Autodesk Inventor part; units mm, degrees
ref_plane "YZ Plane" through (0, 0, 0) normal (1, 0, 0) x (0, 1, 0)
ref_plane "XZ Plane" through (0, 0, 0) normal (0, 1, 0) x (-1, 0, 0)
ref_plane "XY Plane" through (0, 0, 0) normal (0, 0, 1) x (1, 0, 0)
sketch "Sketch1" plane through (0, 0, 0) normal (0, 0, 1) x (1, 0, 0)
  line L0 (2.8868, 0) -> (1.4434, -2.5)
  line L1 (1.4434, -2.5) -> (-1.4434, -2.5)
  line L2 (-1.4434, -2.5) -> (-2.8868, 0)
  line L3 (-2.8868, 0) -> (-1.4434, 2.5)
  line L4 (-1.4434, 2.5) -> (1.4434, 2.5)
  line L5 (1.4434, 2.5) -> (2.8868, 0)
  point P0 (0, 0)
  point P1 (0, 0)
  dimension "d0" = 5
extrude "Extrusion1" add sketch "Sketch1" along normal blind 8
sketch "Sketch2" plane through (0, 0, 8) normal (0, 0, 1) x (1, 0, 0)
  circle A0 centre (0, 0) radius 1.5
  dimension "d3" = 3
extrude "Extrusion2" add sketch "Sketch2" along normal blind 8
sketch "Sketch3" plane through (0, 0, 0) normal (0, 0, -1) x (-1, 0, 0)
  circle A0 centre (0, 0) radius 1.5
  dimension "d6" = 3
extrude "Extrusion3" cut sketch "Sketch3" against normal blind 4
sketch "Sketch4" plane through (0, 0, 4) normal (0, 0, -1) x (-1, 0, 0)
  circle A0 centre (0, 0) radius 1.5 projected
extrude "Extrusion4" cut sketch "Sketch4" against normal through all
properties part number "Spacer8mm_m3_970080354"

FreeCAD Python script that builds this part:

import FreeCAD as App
import Part
import Sketcher

V = App.Vector
Q = App.Units.Quantity

doc = App.newDocument("Part")
params = doc.addObject("Spreadsheet::Sheet", "Params")
for row, (alias, value) in enumerate([
    ("pad1_length", "8 mm"),
    ("sketch2_diameter", "3 mm"),
    ("pad2_length", "8 mm"),
    ("sketch3_diameter", "3 mm"),
    ("pocket1_length", "4 mm"),
    ("sketch4_diameter", "3 mm"),
], start=1):
    params.set(f"A{row}", alias)
    params.set(f"B{row}", "=" + value)
    params.setAlias(f"B{row}", alias)

body = doc.addObject("PartDesign::Body", "Body")

sketch1 = doc.addObject("Sketcher::SketchObject", "Sketch")
body.addObject(sketch1)
sketch1.AttachmentSupport = (doc.XY_Plane, [""])
sketch1.MapMode = "FlatFace"
sketch1.addGeometry([
    Part.LineSegment(V(1.4, -2.5, 0), V(2.9, 0, 0)),
    Part.LineSegment(V(2.9, 0, 0), V(1.4, 2.5, 0)),
    Part.LineSegment(V(1.4, 2.5, 0), V(-1.4, 2.5, 0)),
    Part.LineSegment(V(-1.4, 2.5, 0), V(-2.9, 0, 0)),
    Part.LineSegment(V(-2.9, 0, 0), V(-1.4, -2.5, 0)),
    Part.LineSegment(V(-1.4, -2.5, 0), V(1.4, -2.5, 0)),
], False)
sketch1.addConstraint([
    Sketcher.Constraint("Coincident", 0, 2, 1, 1),
    Sketcher.Constraint("Coincident", 1, 2, 2, 1),
    Sketcher.Constraint("Coincident", 2, 2, 3, 1),
    Sketcher.Constraint("Coincident", 3, 2, 4, 1),
    Sketcher.Constraint("Coincident", 4, 2, 5, 1),
    Sketcher.Constraint("Coincident", 5, 2, 0, 1),
    Sketcher.Constraint("Horizontal", 2),
    Sketcher.Constraint("Horizontal", 5),
    Sketcher.Constraint("Symmetric", 0, 2, 3, 2, -1, 1),
    Sketcher.Constraint("Symmetric", 1, 2, 4, 2, -1, 1),
    Sketcher.Constraint("PointOnObject", 0, 2, -1),
    Sketcher.Constraint("Parallel", 0, 3),
    Sketcher.Constraint("Vertical", 2, 2, 4, 2),
    Sketcher.Constraint("DistanceY", 4, 2, 2, 2, Q("5 mm")),
    Sketcher.Constraint("Angle", 0, Q("59.9996 deg")),
    Sketcher.Constraint("DistanceX", 2, 2, 2, 1, Q("2.8868 mm")),
])
pad1 = doc.addObject("PartDesign::Pad", "Pad")
body.addObject(pad1)
pad1.Profile = sketch1
pad1.setExpression("Length", "Params.pad1_length")

sketch2 = doc.addObject("Sketcher::SketchObject", "Sketch001")
body.addObject(sketch2)
sketch2.AttachmentSupport = (doc.XY_Plane, [""])
sketch2.MapMode = "FlatFace"
sketch2.AttachmentOffset = App.Placement(V(0, 0, 8), App.Rotation())
sketch2.addGeometry(Part.Circle(V(0, 0, 0), V(0, 0, 1), 1.5), False)
sketch2.addConstraint([
    Sketcher.Constraint("Coincident", 0, 3, -1, 1),
    Sketcher.Constraint("Diameter", 0, Q("3 mm")),
])
sketch2.setExpression("Constraints[1]", "Params.sketch2_diameter")
pad2 = doc.addObject("PartDesign::Pad", "Pad001")
body.addObject(pad2)
pad2.Profile = sketch2
pad2.setExpression("Length", "Params.pad2_length")

sketch3 = doc.addObject("Sketcher::SketchObject", "Sketch002")
body.addObject(sketch3)
sketch3.AttachmentSupport = (doc.XY_Plane, [""])
sketch3.MapMode = "FlatFace"
sketch3.addGeometry(Part.Circle(V(0, 0, 0), V(0, 0, 1), 1.5), False)
sketch3.addConstraint([
    Sketcher.Constraint("Coincident", 0, 3, -1, 1),
    Sketcher.Constraint("Diameter", 0, Q("3 mm")),
])
sketch3.setExpression("Constraints[1]", "Params.sketch3_diameter")
pocket1 = doc.addObject("PartDesign::Pocket", "Pocket")
body.addObject(pocket1)
pocket1.Profile = sketch3
pocket1.setExpression("Length", "Params.pocket1_length")
pocket1.Reversed = True

sketch4 = doc.addObject("Sketcher::SketchObject", "Sketch003")
body.addObject(sketch4)
sketch4.AttachmentSupport = (doc.XY_Plane, [""])
sketch4.MapMode = "FlatFace"
sketch4.AttachmentOffset = App.Placement(V(0, 0, 4), App.Rotation())
sketch4.addGeometry(Part.Circle(V(0, 0, 0), V(0, 0, 1), 1.5), False)
sketch4.addConstraint([
    Sketcher.Constraint("Coincident", 0, 3, -1, 1),
    Sketcher.Constraint("Diameter", 0, Q("3 mm")),
])
sketch4.setExpression("Constraints[1]", "Params.sketch4_diameter")
pocket2 = doc.addObject("PartDesign::Pocket", "Pocket001")
body.addObject(pocket2)
pocket2.Profile = sketch4
pocket2.Type = "ThroughAll"
pocket2.Reversed = True

doc.recompute()
